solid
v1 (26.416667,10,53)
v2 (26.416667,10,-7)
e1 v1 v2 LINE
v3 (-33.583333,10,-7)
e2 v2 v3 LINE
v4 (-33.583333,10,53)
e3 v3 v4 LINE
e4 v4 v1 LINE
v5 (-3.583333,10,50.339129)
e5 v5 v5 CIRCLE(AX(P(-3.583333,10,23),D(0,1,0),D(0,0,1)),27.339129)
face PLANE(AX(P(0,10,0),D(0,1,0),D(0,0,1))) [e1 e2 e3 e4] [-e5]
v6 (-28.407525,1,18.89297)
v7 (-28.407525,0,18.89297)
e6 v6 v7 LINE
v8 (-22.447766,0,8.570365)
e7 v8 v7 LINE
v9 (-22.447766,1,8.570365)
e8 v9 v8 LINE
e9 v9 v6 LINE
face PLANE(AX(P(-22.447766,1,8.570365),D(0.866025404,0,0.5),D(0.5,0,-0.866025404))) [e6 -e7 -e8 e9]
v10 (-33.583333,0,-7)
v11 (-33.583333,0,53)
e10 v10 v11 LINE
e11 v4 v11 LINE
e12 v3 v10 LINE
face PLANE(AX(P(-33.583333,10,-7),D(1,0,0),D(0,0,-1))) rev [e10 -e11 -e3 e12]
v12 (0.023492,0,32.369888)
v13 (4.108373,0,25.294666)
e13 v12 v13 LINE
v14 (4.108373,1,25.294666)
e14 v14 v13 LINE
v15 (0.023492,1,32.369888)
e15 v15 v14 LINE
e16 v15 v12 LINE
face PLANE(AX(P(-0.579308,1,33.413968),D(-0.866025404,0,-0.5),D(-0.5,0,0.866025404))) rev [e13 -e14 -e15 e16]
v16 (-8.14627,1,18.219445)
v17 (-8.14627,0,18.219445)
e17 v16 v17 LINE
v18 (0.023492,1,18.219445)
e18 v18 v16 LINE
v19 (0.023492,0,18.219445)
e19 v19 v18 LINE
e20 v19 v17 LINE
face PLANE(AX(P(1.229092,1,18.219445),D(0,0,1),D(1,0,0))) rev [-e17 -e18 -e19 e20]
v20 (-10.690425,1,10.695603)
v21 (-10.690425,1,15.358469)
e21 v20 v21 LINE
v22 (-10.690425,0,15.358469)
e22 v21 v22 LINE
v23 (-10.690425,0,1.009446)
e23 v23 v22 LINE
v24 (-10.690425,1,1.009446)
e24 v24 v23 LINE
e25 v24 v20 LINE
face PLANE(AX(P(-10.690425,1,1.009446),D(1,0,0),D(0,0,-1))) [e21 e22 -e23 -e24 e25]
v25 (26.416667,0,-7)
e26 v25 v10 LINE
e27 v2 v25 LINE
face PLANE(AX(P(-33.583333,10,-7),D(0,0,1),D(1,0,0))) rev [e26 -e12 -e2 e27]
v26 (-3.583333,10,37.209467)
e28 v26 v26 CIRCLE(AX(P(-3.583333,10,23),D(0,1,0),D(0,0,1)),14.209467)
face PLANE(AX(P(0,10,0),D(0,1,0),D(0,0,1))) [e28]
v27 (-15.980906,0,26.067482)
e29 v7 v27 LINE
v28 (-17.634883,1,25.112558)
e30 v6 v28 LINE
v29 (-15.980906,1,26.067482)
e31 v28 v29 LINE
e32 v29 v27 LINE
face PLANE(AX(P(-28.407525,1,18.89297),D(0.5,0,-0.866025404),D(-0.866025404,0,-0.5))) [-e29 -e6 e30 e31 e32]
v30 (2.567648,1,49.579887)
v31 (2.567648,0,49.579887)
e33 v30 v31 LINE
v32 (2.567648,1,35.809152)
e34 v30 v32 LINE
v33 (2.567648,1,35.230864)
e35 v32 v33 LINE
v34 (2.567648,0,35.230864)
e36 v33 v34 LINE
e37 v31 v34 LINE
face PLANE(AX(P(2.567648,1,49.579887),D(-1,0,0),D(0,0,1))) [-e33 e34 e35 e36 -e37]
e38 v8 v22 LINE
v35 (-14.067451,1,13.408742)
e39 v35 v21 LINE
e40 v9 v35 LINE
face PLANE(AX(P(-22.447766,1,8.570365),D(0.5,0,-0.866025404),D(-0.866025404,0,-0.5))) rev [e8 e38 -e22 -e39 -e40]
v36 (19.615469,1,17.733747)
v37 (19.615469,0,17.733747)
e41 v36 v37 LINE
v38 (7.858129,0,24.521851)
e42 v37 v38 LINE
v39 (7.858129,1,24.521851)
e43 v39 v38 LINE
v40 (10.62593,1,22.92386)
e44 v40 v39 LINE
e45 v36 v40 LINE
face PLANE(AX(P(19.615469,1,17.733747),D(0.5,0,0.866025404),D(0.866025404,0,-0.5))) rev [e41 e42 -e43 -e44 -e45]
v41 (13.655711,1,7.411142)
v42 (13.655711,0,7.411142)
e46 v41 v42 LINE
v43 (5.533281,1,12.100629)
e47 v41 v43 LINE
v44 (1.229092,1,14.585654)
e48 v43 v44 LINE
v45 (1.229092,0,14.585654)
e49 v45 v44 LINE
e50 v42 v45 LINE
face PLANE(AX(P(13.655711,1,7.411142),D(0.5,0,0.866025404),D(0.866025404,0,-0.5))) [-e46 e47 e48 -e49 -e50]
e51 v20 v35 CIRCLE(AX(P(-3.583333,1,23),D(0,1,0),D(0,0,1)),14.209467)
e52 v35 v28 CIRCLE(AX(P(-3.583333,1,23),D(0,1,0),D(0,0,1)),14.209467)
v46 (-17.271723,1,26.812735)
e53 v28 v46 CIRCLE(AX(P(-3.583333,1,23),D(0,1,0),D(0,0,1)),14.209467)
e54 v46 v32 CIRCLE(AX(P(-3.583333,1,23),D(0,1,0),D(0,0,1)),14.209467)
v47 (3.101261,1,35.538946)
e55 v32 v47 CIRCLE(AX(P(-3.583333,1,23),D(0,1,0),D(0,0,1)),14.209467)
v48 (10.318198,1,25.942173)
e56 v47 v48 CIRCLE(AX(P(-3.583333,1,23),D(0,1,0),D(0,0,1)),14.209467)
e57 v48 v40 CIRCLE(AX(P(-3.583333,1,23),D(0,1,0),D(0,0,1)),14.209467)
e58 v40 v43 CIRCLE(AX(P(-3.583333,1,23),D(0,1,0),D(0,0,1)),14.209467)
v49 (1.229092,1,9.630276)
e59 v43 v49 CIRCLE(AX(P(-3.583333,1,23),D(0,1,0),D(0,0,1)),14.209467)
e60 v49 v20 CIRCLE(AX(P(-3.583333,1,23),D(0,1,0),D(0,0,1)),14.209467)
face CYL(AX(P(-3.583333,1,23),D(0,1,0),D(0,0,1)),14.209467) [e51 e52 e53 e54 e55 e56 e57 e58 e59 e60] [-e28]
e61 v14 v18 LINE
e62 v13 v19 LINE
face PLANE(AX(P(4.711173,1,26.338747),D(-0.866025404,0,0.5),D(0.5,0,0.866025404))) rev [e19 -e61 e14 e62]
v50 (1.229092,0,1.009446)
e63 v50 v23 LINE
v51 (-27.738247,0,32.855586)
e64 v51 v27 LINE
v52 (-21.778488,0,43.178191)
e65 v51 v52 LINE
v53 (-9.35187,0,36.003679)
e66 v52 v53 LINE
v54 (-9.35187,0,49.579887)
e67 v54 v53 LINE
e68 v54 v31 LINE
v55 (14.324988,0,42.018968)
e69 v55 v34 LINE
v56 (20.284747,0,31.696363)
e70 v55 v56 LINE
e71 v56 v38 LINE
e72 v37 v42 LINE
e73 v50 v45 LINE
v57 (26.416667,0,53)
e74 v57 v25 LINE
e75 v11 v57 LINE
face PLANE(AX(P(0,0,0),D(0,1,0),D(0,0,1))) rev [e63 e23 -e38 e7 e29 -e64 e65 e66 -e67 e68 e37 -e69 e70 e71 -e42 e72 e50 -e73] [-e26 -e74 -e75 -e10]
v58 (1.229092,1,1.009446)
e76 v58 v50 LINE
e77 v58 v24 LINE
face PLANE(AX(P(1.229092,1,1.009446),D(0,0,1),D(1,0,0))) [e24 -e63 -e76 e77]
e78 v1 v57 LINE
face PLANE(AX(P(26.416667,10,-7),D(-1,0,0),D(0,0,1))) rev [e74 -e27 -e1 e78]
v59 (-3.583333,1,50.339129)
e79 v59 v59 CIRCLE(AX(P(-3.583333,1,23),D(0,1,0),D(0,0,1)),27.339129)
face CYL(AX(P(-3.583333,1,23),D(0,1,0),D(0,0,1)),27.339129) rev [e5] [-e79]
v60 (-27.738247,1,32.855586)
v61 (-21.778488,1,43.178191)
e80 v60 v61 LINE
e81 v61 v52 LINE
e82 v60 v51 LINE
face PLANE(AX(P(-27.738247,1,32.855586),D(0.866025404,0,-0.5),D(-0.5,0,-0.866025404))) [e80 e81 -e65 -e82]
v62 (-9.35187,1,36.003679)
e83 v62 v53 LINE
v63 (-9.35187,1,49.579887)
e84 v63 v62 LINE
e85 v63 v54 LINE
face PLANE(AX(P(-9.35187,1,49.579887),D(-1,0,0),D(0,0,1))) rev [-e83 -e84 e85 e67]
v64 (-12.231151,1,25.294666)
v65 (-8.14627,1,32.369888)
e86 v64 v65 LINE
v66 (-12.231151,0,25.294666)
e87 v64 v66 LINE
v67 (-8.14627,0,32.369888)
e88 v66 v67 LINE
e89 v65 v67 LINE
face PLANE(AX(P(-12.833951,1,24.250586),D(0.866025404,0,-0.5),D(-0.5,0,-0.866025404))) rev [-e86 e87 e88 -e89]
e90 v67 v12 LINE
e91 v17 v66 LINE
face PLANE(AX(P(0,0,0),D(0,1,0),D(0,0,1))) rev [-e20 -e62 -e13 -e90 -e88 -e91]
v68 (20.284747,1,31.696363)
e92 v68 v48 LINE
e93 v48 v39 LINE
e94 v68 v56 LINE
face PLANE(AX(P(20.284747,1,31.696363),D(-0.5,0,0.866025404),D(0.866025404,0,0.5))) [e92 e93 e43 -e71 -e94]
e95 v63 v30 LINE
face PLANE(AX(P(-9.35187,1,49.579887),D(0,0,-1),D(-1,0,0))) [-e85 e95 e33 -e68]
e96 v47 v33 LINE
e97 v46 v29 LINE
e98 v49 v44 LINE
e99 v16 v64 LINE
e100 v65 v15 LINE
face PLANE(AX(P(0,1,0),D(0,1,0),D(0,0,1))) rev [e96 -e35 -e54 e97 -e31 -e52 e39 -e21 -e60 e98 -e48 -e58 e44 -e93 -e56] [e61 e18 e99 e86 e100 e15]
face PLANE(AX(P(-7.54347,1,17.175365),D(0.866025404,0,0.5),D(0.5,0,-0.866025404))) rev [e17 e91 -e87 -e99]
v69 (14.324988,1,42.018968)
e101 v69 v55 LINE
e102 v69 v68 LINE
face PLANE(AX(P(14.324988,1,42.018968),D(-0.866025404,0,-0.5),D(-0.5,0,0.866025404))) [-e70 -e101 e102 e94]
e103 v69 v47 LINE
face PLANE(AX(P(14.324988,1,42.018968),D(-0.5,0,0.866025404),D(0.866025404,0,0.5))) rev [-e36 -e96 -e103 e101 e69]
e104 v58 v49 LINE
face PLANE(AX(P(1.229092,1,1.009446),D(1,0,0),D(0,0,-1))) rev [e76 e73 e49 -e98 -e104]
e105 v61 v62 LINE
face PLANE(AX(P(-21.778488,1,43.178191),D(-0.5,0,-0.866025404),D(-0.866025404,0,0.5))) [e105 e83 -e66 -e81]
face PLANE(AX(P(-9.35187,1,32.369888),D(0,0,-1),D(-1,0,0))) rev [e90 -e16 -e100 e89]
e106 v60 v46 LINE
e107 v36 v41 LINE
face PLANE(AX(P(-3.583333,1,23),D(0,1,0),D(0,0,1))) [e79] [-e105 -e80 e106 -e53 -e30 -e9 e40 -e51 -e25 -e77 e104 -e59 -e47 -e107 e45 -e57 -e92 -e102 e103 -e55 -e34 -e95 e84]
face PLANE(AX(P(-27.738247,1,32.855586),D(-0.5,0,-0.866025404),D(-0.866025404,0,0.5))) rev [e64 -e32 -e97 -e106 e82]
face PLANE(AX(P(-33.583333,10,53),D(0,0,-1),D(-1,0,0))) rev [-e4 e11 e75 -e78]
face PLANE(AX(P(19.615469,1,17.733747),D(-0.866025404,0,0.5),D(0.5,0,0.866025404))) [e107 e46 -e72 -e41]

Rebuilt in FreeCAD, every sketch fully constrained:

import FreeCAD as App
import Part
import Sketcher
from FreeCAD import Vector
Q = App.Units.Quantity


def add_polygon(sketch, points):
    """Adds a closed chain of lines whose ends are joined by coincident constraints."""
    first, n = sketch.GeometryCount, len(points)
    for a, b in zip(points, points[1:] + points[:1]):
        sketch.addGeometry(Part.LineSegment(App.Vector(*a, 0), App.Vector(*b, 0)), False)
    for i in range(n):
        sketch.addConstraint(Sketcher.Constraint("Coincident", first + i, 2, first + (i + 1) % n, 1))

doc = App.newDocument("Part")
body = doc.addObject("PartDesign::Body", "Body")

# Sketch on XZ plane
sketch1 = body.newObject("Sketcher::SketchObject", "Sketch")
sketch1.AttachmentSupport = (doc.getObject("XZ_Plane"), [""])
sketch1.MapMode = "FlatFace"
add_polygon(sketch1, [(-33.583333, -7), (-33.583333, 53), (26.416667, 53), (26.416667, -7)])  # lines 0-3
sketch1.addConstraint([
    Sketcher.Constraint("Vertical", 0),
    Sketcher.Constraint("Horizontal", 1),
    Sketcher.Constraint("Vertical", 2),
    Sketcher.Constraint("Horizontal", 3),
    Sketcher.Constraint("Equal", 3, 0),
    Sketcher.Constraint("DistanceX", 1, 1, 1, 2, 60.0),
    Sketcher.Constraint("DistanceY", -1, 1, 0, 2, 53.0),
    Sketcher.Constraint("DistanceX", 0, 2, -1, 1, 33.583333),
])
pad1 = body.newObject("PartDesign::Pad", "Pad")
pad1.Profile = sketch1
pad1.Length = 10
pad1.Reversed = True

# Sketch on XZ plane
sketch2 = body.newObject("Sketcher::SketchObject", "Sketch001")
sketch2.AttachmentSupport = (doc.getObject("XZ_Plane"), [""])
sketch2.MapMode = "FlatFace"
sketch2.AttachmentOffset = App.Placement(Vector(0, 0, -10), App.Rotation())
sketch2.addGeometry([
    Part.Circle(Vector(-3.583333, 23, 0), Vector(0, 0, 1), 27.339129),
    Part.Circle(Vector(-3.583333, 23, 0), Vector(0, 0, 1), 14.209467),
], False)
sketch2.addConstraint([
    Sketcher.Constraint("Coincident", 1, 3, 0, 3),
    Sketcher.Constraint("DistanceY", -1, 1, 0, 3, 23.0),
    Sketcher.Constraint("Diameter", 0, 54.678258),
    Sketcher.Constraint("Diameter", 1, 28.418934),
    Sketcher.Constraint("DistanceX", 0, 3, -1, 1, 3.583333),
])
pocket1 = body.newObject("PartDesign::Pocket", "Pocket")
pocket1.Profile = sketch2
pocket1.Length = 9
pocket1.Reversed = True

# Sketch on XZ plane
sketch3 = body.newObject("Sketcher::SketchObject", "Sketch002")
sketch3.AttachmentSupport = (doc.getObject("XZ_Plane"), [""])
sketch3.MapMode = "FlatFace"
add_polygon(sketch3, [(1.229092, 14.585654), (13.655711, 7.411142), (19.615469, 17.733747), (7.858129, 24.521851), (20.284747, 31.696363), (14.324988, 42.018968), (2.567648, 35.230864), (2.567648, 49.579887), (-9.35187, 49.579887), (-9.35187, 36.003679), (-21.778488, 43.178191), (-27.738247, 32.855586), (-15.980906, 26.067482), (-28.407525, 18.89297), (-22.447766, 8.570365), (-10.690425, 15.358469), (-10.690425, 1.009446), (1.229092, 1.009446)])  # lines 0-17
add_polygon(sketch3, [(-8.14627, 18.219445), (-12.231151, 25.294666), (-8.14627, 32.369888), (0.023492, 32.369888), (4.108373, 25.294666), (0.023492, 18.219445)])  # lines 18-23
sketch3.addConstraint([
    Sketcher.Constraint("Vertical", 6),
    Sketcher.Constraint("Horizontal", 7),
    Sketcher.Constraint("Vertical", 8),
    Sketcher.Constraint("Vertical", 15),
    Sketcher.Constraint("Horizontal", 16),
    Sketcher.Constraint("Vertical", 17),
    Sketcher.Constraint("Horizontal", 20),
    Sketcher.Constraint("Horizontal", 23),
    Sketcher.Constraint("Perpendicular", 0, 1),
    Sketcher.Constraint("Perpendicular", 1, 2),
    Sketcher.Constraint("Perpendicular", 3, 4),
    Sketcher.Constraint("Perpendicular", 4, 5),
    Sketcher.Constraint("Parallel", 2, 9),
    Sketcher.Constraint("Perpendicular", 9, 10),
    Sketcher.Constraint("Perpendicular", 10, 11),
    Sketcher.Constraint("Parallel", 5, 12),
    Sketcher.Constraint("Perpendicular", 12, 13),
    Sketcher.Constraint("Perpendicular", 13, 14),
    Sketcher.Constraint("Perpendicular", 14, 18),
    Sketcher.Constraint("Perpendicular", 11, 19),
    Sketcher.Constraint("Parallel", 18, 21),
    Sketcher.Constraint("Parallel", 19, 22),
    Sketcher.Constraint("Horizontal", 18, 2, 21, 2),
    Sketcher.Constraint("Vertical", 20, 2, 22, 2),
    Sketcher.Constraint("Vertical", 19, 2, 23, 2),
    Sketcher.Constraint("Equal", 7, 16),
    Sketcher.Constraint("Equal", 6, 15),
    Sketcher.Constraint("Equal", 8, 17),
    Sketcher.Constraint("Equal", 0, 3),
    Sketcher.Constraint("Equal", 1, 4),
    Sketcher.Constraint("Equal", 2, 5),
    Sketcher.Constraint("Equal", 3, 9),
    Sketcher.Constraint("Equal", 4, 10),
    Sketcher.Constraint("Equal", 5, 11),
    Sketcher.Constraint("Equal", 9, 12),
    Sketcher.Constraint("Angle", 0, Q("-30 deg")),
    Sketcher.Constraint("DistanceX", 7, 2, 2, 2, 17.209999),
    Sketcher.Constraint("DistanceX", 5, 2, 3, 2, 17.717099),
    Sketcher.Constraint("DistanceY", 3, 2, 5, 2, 3.534501),
    Sketcher.Constraint("DistanceY", 10, 2, 7, 2, 16.724301),
    Sketcher.Constraint("DistanceX", 8, 2, 19, 2, 1.2056),
    Sketcher.Constraint("DistanceX", 22, 2, 17, 2, 1.2056),
    Sketcher.Constraint("DistanceX", 7, 2, 7, 1, 11.919518),
    Sketcher.Constraint("DistanceY", 6, 1, 6, 2, 14.349023),
    Sketcher.Constraint("DistanceX", -1, 1, 0, 2, 13.655711),
    Sketcher.Constraint("DistanceY", -1, 1, 2, 2, 24.521851),
    Sketcher.Constraint("DistanceX", 18, 2, -1, 1, 12.231151),
    Sketcher.Constraint("DistanceY", -1, 1, 19, 2, 32.369888),
])
pocket2 = body.newObject("PartDesign::Pocket", "Pocket001")
pocket2.Profile = sketch3
pocket2.Length = 1

doc.recompute()
